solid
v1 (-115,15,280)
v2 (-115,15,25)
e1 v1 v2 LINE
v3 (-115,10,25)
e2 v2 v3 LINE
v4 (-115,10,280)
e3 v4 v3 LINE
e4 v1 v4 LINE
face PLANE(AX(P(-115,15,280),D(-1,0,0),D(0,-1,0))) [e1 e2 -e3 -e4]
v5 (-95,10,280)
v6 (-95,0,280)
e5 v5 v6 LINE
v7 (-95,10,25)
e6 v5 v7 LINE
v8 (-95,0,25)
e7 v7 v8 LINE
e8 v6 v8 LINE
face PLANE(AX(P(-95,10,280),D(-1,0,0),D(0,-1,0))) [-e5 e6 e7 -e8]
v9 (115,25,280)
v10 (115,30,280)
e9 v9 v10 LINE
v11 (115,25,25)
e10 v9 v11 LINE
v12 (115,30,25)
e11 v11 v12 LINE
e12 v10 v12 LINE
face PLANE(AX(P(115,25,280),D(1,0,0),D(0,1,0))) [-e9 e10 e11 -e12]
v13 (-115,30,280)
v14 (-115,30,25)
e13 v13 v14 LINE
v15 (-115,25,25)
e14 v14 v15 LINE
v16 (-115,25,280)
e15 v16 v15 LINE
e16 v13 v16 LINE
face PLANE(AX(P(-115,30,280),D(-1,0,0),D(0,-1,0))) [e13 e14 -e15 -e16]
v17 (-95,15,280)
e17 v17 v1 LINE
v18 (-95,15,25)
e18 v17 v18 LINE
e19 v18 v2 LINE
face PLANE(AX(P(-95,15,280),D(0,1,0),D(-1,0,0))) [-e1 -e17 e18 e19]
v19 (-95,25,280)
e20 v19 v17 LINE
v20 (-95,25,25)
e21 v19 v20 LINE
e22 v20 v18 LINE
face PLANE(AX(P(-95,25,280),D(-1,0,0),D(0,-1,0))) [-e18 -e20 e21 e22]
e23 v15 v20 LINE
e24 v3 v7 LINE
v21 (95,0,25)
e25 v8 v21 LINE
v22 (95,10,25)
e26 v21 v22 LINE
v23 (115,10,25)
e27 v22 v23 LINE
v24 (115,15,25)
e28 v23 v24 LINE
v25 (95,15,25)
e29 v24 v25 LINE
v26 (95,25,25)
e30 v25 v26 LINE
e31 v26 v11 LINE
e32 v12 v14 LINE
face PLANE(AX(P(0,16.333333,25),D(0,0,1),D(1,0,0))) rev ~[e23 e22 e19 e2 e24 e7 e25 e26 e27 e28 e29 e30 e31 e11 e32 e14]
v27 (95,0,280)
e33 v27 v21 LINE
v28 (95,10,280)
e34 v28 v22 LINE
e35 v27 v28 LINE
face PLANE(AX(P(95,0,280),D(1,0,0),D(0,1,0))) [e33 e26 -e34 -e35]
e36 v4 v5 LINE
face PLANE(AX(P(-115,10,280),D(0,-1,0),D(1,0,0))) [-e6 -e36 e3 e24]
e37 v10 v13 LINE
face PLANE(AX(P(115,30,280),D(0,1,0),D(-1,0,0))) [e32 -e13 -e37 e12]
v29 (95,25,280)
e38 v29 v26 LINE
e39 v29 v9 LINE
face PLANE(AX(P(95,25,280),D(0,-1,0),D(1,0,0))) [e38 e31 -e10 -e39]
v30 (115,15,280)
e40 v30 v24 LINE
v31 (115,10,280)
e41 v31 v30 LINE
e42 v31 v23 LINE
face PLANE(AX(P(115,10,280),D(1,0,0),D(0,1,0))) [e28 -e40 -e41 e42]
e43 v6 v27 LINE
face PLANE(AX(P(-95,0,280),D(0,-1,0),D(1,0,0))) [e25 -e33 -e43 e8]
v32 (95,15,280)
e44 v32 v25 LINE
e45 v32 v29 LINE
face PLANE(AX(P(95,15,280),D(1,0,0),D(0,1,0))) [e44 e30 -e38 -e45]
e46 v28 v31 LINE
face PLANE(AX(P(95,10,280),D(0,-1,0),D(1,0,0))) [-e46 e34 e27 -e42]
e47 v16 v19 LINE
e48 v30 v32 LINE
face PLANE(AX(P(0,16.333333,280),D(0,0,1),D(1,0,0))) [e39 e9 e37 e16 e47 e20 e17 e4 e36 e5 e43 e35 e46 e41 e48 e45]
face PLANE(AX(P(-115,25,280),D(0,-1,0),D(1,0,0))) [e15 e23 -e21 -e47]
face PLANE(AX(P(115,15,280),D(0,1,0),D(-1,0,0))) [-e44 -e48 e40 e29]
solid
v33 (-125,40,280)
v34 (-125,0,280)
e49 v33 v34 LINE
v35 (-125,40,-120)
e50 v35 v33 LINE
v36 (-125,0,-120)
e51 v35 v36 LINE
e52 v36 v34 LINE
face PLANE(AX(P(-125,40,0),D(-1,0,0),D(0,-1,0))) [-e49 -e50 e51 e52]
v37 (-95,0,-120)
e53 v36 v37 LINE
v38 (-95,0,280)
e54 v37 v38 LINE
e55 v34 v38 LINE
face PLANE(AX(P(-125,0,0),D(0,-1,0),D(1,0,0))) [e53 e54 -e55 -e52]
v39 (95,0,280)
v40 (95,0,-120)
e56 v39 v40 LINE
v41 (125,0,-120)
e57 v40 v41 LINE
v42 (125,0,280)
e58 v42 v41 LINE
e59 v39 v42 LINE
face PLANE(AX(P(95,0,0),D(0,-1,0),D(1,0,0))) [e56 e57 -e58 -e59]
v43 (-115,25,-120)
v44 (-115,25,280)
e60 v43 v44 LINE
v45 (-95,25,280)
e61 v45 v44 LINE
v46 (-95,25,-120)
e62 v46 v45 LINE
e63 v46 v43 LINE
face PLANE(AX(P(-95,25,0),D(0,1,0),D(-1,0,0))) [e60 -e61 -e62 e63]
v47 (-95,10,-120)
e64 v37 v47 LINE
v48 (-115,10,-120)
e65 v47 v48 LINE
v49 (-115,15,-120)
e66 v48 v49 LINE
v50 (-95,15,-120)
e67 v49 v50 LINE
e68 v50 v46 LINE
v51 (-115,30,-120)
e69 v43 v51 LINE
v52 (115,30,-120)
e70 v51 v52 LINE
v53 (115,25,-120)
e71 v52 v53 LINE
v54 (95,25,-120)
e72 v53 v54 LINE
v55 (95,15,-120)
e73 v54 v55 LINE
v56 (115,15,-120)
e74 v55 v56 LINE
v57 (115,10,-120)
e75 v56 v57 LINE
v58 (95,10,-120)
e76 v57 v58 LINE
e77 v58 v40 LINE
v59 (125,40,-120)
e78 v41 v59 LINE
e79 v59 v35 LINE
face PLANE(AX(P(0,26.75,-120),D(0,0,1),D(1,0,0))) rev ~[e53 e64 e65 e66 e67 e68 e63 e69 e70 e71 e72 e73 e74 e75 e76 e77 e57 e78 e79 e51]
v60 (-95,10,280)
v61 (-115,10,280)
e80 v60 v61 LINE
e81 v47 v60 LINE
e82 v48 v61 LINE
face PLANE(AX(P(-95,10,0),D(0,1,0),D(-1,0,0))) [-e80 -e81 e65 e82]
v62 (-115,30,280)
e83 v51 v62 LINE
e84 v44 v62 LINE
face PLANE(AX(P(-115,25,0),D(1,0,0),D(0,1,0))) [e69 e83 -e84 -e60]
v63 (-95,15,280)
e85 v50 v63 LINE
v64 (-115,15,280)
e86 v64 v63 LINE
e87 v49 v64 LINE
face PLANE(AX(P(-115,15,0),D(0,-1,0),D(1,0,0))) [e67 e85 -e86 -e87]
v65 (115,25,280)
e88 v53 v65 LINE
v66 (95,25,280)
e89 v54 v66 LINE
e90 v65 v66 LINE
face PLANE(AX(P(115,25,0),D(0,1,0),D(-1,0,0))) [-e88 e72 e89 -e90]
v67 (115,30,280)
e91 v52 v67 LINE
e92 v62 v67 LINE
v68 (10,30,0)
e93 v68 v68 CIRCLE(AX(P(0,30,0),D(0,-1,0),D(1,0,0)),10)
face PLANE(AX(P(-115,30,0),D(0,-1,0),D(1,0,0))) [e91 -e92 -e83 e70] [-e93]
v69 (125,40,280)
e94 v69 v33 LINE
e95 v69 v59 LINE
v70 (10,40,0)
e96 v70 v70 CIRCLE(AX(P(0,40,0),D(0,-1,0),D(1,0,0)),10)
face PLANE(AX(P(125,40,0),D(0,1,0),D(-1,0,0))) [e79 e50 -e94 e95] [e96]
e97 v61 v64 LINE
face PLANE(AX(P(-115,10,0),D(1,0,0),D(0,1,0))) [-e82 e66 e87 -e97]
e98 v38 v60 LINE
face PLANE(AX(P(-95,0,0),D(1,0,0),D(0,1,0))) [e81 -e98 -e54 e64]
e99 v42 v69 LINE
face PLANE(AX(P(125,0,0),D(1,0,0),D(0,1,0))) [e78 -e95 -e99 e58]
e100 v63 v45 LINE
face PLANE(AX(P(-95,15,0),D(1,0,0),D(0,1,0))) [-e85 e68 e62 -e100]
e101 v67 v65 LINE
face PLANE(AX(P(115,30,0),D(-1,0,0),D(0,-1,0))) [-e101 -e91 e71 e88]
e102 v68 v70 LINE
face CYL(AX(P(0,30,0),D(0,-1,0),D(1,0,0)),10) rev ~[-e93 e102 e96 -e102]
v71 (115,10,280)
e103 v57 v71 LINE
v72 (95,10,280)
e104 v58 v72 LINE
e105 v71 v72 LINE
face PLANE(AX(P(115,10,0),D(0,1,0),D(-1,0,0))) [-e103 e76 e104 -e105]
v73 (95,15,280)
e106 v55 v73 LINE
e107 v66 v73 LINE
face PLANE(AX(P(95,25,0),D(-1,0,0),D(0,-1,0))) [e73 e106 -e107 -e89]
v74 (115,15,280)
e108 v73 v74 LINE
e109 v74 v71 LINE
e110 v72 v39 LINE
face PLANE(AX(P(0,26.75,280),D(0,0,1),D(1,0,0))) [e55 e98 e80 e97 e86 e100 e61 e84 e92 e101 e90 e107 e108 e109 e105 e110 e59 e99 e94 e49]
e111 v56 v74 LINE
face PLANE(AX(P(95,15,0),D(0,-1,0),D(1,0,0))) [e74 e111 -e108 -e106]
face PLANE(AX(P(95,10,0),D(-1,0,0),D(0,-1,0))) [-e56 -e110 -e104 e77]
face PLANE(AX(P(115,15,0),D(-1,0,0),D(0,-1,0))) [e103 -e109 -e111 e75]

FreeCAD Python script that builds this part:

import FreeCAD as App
import Part
import Sketcher

doc = App.newDocument("Part")
body = doc.addObject("PartDesign::Body", "Body")

sketch1 = body.newObject("Sketcher::SketchObject", "Sketch")
sketch1.AttachmentSupport = (doc.getObject("XY_Plane"), [""])
sketch1.MapMode = "FlatFace"
sketch1.addGeometry([
    Part.LineSegment(App.Vector(125, 40, 0), App.Vector(-125, 40, 0)),
    Part.LineSegment(App.Vector(-125, 40, 0), App.Vector(-125, 0, 0)),
    Part.LineSegment(App.Vector(-125, 0, 0), App.Vector(-95, 0, 0)),
    Part.LineSegment(App.Vector(-95, 0, 0), App.Vector(-95, 10, 0)),
    Part.LineSegment(App.Vector(-95, 10, 0), App.Vector(-115, 10, 0)),
    Part.LineSegment(App.Vector(-115, 10, 0), App.Vector(-115, 15, 0)),
    Part.LineSegment(App.Vector(-115, 15, 0), App.Vector(-95, 15, 0)),
    Part.LineSegment(App.Vector(-95, 15, 0), App.Vector(-95, 25, 0)),
    Part.LineSegment(App.Vector(-95, 25, 0), App.Vector(-115, 25, 0)),
    Part.LineSegment(App.Vector(-115, 25, 0), App.Vector(-115, 30, 0)),
    Part.LineSegment(App.Vector(-115, 30, 0), App.Vector(115, 30, 0)),
    Part.LineSegment(App.Vector(115, 30, 0), App.Vector(115, 25, 0)),
    Part.LineSegment(App.Vector(115, 25, 0), App.Vector(95, 25, 0)),
    Part.LineSegment(App.Vector(95, 25, 0), App.Vector(95, 15, 0)),
    Part.LineSegment(App.Vector(95, 15, 0), App.Vector(115, 15, 0)),
    Part.LineSegment(App.Vector(115, 15, 0), App.Vector(115, 10, 0)),
    Part.LineSegment(App.Vector(115, 10, 0), App.Vector(95, 10, 0)),
    Part.LineSegment(App.Vector(95, 10, 0), App.Vector(95, 0, 0)),
    Part.LineSegment(App.Vector(95, 0, 0), App.Vector(125, 0, 0)),
    Part.LineSegment(App.Vector(125, 0, 0), App.Vector(125, 40, 0)),
], False)
sketch1.addConstraint([
    Sketcher.Constraint("Coincident", 0, 2, 1, 1),
    Sketcher.Constraint("Coincident", 1, 2, 2, 1),
    Sketcher.Constraint("Coincident", 2, 2, 3, 1),
    Sketcher.Constraint("Coincident", 3, 2, 4, 1),
    Sketcher.Constraint("Coincident", 4, 2, 5, 1),
    Sketcher.Constraint("Coincident", 5, 2, 6, 1),
    Sketcher.Constraint("Coincident", 6, 2, 7, 1),
    Sketcher.Constraint("Coincident", 7, 2, 8, 1),
    Sketcher.Constraint("Coincident", 8, 2, 9, 1),
    Sketcher.Constraint("Coincident", 9, 2, 10, 1),
    Sketcher.Constraint("Coincident", 10, 2, 11, 1),
    Sketcher.Constraint("Coincident", 11, 2, 12, 1),
    Sketcher.Constraint("Coincident", 12, 2, 13, 1),
    Sketcher.Constraint("Coincident", 13, 2, 14, 1),
    Sketcher.Constraint("Coincident", 14, 2, 15, 1),
    Sketcher.Constraint("Coincident", 15, 2, 16, 1),
    Sketcher.Constraint("Coincident", 16, 2, 17, 1),
    Sketcher.Constraint("Coincident", 17, 2, 18, 1),
    Sketcher.Constraint("Coincident", 18, 2, 19, 1),
    Sketcher.Constraint("Coincident", 19, 2, 0, 1),
    Sketcher.Constraint("Horizontal", 0),
    Sketcher.Constraint("Vertical", 1),
    Sketcher.Constraint("Horizontal", 2),
    Sketcher.Constraint("Vertical", 3),
    Sketcher.Constraint("Horizontal", 4),
    Sketcher.Constraint("Vertical", 5),
    Sketcher.Constraint("Horizontal", 6),
    Sketcher.Constraint("Vertical", 7),
    Sketcher.Constraint("Horizontal", 8),
    Sketcher.Constraint("Vertical", 9),
    Sketcher.Constraint("Horizontal", 10),
    Sketcher.Constraint("Vertical", 11),
    Sketcher.Constraint("Horizontal", 12),
    Sketcher.Constraint("Vertical", 13),
    Sketcher.Constraint("Horizontal", 14),
    Sketcher.Constraint("Vertical", 15),
    Sketcher.Constraint("Horizontal", 16),
    Sketcher.Constraint("Vertical", 17),
    Sketcher.Constraint("Horizontal", 18),
    Sketcher.Constraint("Vertical", 19),
    Sketcher.Constraint("Symmetric", 2, 2, 17, 2, -1, 1),
    Sketcher.Constraint("Symmetric", 8, 2, 11, 2, -2),
    Sketcher.Constraint("Symmetric", 6, 2, 13, 2, -2),
    Sketcher.Constraint("Symmetric", 4, 2, 15, 2, -2),
    Sketcher.Constraint("Symmetric", 1, 2, 18, 2, -2),
    Sketcher.Constraint("Vertical", 3, 2, 6, 2),
    Sketcher.Constraint("Vertical", 5, 2, 8, 2),
    Sketcher.Constraint("Equal", 3, 7),
    Sketcher.Constraint("Equal", 5, 9),
    Sketcher.Constraint("DistanceX", 0, 2, 0, 1, 250.0),
    Sketcher.Constraint("DistanceX", 2, 1, 2, 2, 30.0),
    Sketcher.Constraint("DistanceX", 4, 2, 4, 1, 20.0),
    Sketcher.Constraint("DistanceY", 1, 2, 1, 1, 40.0),
    Sketcher.Constraint("DistanceY", 3, 1, 3, 2, 10.0),
    Sketcher.Constraint("DistanceY", 5, 1, 5, 2, 5.0),
])
pad1 = body.newObject("PartDesign::Pad", "Pad")
pad1.Profile = sketch1
pad1.Type = "TwoLengths"
pad1.Length = 280
pad1.Length2 = 120

sketch2 = body.newObject("Sketcher::SketchObject", "Sketch001")
sketch2.AttachmentSupport = (doc.getObject("XZ_Plane"), [""])
sketch2.MapMode = "FlatFace"
sketch2.AttachmentOffset = App.Placement(App.Vector(0, 0, -30), App.Rotation())
sketch2.addGeometry(Part.Circle(App.Vector(0, 0, 0), App.Vector(0, 0, 1), 10), False)
sketch2.addConstraint([
    Sketcher.Constraint("Coincident", 0, 3, -1, 1),
    Sketcher.Constraint("Diameter", 0, 20.0),
])
pocket1 = body.newObject("PartDesign::Pocket", "Pocket")
pocket1.Profile = sketch2
pocket1.Length = 20
body2 = doc.addObject("PartDesign::Body", "Body001")

sketch3 = body2.newObject("Sketcher::SketchObject", "Sketch002")
sketch3.AttachmentSupport = (doc.getObject("XY_Plane001"), [""])
sketch3.MapMode = "FlatFace"
sketch3.AttachmentOffset = App.Placement(App.Vector(0, 0, 280), App.Rotation())
sketch3.addGeometry([
    Part.LineSegment(App.Vector(115, 30, 0), App.Vector(-115, 30, 0)),
    Part.LineSegment(App.Vector(-115, 30, 0), App.Vector(-115, 25, 0)),
    Part.LineSegment(App.Vector(-115, 25, 0), App.Vector(-95, 25, 0)),
    Part.LineSegment(App.Vector(-95, 25, 0), App.Vector(-95, 15, 0)),
    Part.LineSegment(App.Vector(-95, 15, 0), App.Vector(-115, 15, 0)),
    Part.LineSegment(App.Vector(-115, 15, 0), App.Vector(-115, 10, 0)),
    Part.LineSegment(App.Vector(-115, 10, 0), App.Vector(-95, 10, 0)),
    Part.LineSegment(App.Vector(-95, 10, 0), App.Vector(-95, 0, 0)),
    Part.LineSegment(App.Vector(-95, 0, 0), App.Vector(95, 0, 0)),
    Part.LineSegment(App.Vector(95, 0, 0), App.Vector(95, 10, 0)),
    Part.LineSegment(App.Vector(95, 10, 0), App.Vector(115, 10, 0)),
    Part.LineSegment(App.Vector(115, 10, 0), App.Vector(115, 15, 0)),
    Part.LineSegment(App.Vector(115, 15, 0), App.Vector(95, 15, 0)),
    Part.LineSegment(App.Vector(95, 15, 0), App.Vector(95, 25, 0)),
    Part.LineSegment(App.Vector(95, 25, 0), App.Vector(115, 25, 0)),
    Part.LineSegment(App.Vector(115, 25, 0), App.Vector(115, 30, 0)),
], False)
sketch3.addConstraint([
    Sketcher.Constraint("Coincident", 0, 2, 1, 1),
    Sketcher.Constraint("Coincident", 1, 2, 2, 1),
    Sketcher.Constraint("Coincident", 2, 2, 3, 1),
    Sketcher.Constraint("Coincident", 3, 2, 4, 1),
    Sketcher.Constraint("Coincident", 4, 2, 5, 1),
    Sketcher.Constraint("Coincident", 5, 2, 6, 1),
    Sketcher.Constraint("Coincident", 6, 2, 7, 1),
    Sketcher.Constraint("Coincident", 7, 2, 8, 1),
    Sketcher.Constraint("Coincident", 8, 2, 9, 1),
    Sketcher.Constraint("Coincident", 9, 2, 10, 1),
    Sketcher.Constraint("Coincident", 10, 2, 11, 1),
    Sketcher.Constraint("Coincident", 11, 2, 12, 1),
    Sketcher.Constraint("Coincident", 12, 2, 13, 1),
    Sketcher.Constraint("Coincident", 13, 2, 14, 1),
    Sketcher.Constraint("Coincident", 14, 2, 15, 1),
    Sketcher.Constraint("Coincident", 15, 2, 0, 1),
    Sketcher.Constraint("Horizontal", 0),
    Sketcher.Constraint("Vertical", 1),
    Sketcher.Constraint("Horizontal", 2),
    Sketcher.Constraint("Vertical", 3),
    Sketcher.Constraint("Horizontal", 4),
    Sketcher.Constraint("Vertical", 5),
    Sketcher.Constraint("Horizontal", 6),
    Sketcher.Constraint("Vertical", 7),
    Sketcher.Constraint("Horizontal", 8),
    Sketcher.Constraint("Vertical", 9),
    Sketcher.Constraint("Horizontal", 10),
    Sketcher.Constraint("Vertical", 11),
    Sketcher.Constraint("Horizontal", 12),
    Sketcher.Constraint("Vertical", 13),
    Sketcher.Constraint("Horizontal", 14),
    Sketcher.Constraint("Vertical", 15),
    Sketcher.Constraint("Symmetric", 7, 2, 8, 2, -1, 1),
    Sketcher.Constraint("Symmetric", 5, 2, 10, 2, -2),
    Sketcher.Constraint("Symmetric", 3, 2, 12, 2, -2),
    Sketcher.Constraint("Symmetric", 1, 2, 14, 2, -2),
    Sketcher.Constraint("Vertical", 1, 2, 4, 2),
    Sketcher.Constraint("Vertical", 3, 2, 6, 2),
    Sketcher.Constraint("Equal", 1, 5),
    Sketcher.Constraint("Equal", 3, 7),
    Sketcher.Constraint("DistanceX", 0, 2, 0, 1, 230.0),
    Sketcher.Constraint("DistanceX", 2, 1, 2, 2, 20.0),
    Sketcher.Constraint("DistanceY", 1, 2, 1, 1, 5.0),
    Sketcher.Constraint("DistanceY", 3, 2, 3, 1, 10.0),
])
pad2 = body2.newObject("PartDesign::Pad", "Pad001")
pad2.Profile = sketch3
pad2.Length = 255
pad2.Reversed = True

doc.recompute()
